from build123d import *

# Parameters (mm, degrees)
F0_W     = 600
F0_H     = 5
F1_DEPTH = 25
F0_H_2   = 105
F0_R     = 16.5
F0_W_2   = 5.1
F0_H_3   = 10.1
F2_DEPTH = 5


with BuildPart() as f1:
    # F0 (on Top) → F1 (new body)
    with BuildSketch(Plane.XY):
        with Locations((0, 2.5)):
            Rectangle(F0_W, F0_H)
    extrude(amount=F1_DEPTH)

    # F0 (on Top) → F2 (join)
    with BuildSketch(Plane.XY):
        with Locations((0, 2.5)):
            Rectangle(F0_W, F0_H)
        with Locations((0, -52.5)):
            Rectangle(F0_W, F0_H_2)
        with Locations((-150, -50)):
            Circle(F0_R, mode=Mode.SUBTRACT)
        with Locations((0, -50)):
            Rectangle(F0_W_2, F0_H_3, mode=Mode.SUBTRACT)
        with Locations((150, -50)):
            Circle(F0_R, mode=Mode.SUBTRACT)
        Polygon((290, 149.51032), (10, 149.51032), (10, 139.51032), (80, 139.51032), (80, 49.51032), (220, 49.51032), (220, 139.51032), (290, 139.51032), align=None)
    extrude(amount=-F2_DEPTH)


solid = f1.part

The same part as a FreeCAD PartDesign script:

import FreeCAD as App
import Part
import Sketcher

doc = App.newDocument("Part")
body = doc.addObject("PartDesign::Body", "Body")
body.AllowCompound = True

sketch1 = body.newObject("Sketcher::SketchObject", "Sketch")
sketch1.AttachmentSupport = (doc.getObject("XY_Plane"), [""])
sketch1.MapMode = "FlatFace"
sketch1.addGeometry(Part.LineSegment(App.Vector(-300, 5, 0), App.Vector(-300, 0, 0)), False)
sketch1.addGeometry(Part.LineSegment(App.Vector(-300, 0, 0), App.Vector(300, 0, 0)), False)
sketch1.addGeometry(Part.LineSegment(App.Vector(300, 0, 0), App.Vector(300, 5, 0)), False)
sketch1.addGeometry(Part.LineSegment(App.Vector(300, 5, 0), App.Vector(-300, 5, 0)), False)
sketch1.addConstraint(Sketcher.Constraint("Coincident", 0, 2, 1, 1))
sketch1.addConstraint(Sketcher.Constraint("Coincident", 1, 2, 2, 1))
sketch1.addConstraint(Sketcher.Constraint("Coincident", 2, 2, 3, 1))
sketch1.addConstraint(Sketcher.Constraint("Coincident", 3, 2, 0, 1))
sketch1.addConstraint(Sketcher.Constraint("Vertical", 0))
sketch1.addConstraint(Sketcher.Constraint("Horizontal", 1))
sketch1.addConstraint(Sketcher.Constraint("Vertical", 2))
sketch1.addConstraint(Sketcher.Constraint("Horizontal", 3))
sketch1.addConstraint(Sketcher.Constraint("Symmetric", 0, 2, 1, 2, -1, 1))
sketch1.addConstraint(Sketcher.Constraint("DistanceX", 1, 1, 1, 2, 600.0))
sketch1.addConstraint(Sketcher.Constraint("DistanceY", 0, 2, 0, 1, 5.0))
pad1 = body.newObject("PartDesign::Pad", "Pad")
pad1.Profile = sketch1
pad1.Length = 25

sketch2 = body.newObject("Sketcher::SketchObject", "Sketch001")
sketch2.AttachmentSupport = (doc.getObject("XY_Plane"), [""])
sketch2.MapMode = "FlatFace"
sketch2.addGeometry(Part.LineSegment(App.Vector(-300, 5, 0), App.Vector(-300, -105, 0)), False)
sketch2.addGeometry(Part.LineSegment(App.Vector(-300, -105, 0), App.Vector(300, -105, 0)), False)
sketch2.addGeometry(Part.LineSegment(App.Vector(300, -105, 0), App.Vector(300, 5, 0)), False)
sketch2.addGeometry(Part.LineSegment(App.Vector(300, 5, 0), App.Vector(-300, 5, 0)), False)
sketch2.addGeometry(Part.Circle(App.Vector(-150, -50, 0), App.Vector(0, 0, 1), 16), False)
sketch2.addGeometry(Part.LineSegment(App.Vector(3, -55, 0), App.Vector(-3, -55, 0)), False)
sketch2.addGeometry(Part.LineSegment(App.Vector(-3, -55, 0), App.Vector(-3, -45, 0)), False)
sketch2.addGeometry(Part.LineSegment(App.Vector(-3, -45, 0), App.Vector(3, -45, 0)), False)
sketch2.addGeometry(Part.LineSegment(App.Vector(3, -45, 0), App.Vector(3, -55, 0)), False)
sketch2.addGeometry(Part.Circle(App.Vector(150, -50, 0), App.Vector(0, 0, 1), 16), False)
sketch2.addGeometry(Part.LineSegment(App.Vector(290, 150, 0), App.Vector(10, 150, 0)), False)
sketch2.addGeometry(Part.LineSegment(App.Vector(10, 150, 0), App.Vector(10, 140, 0)), False)
sketch2.addGeometry(Part.LineSegment(App.Vector(10, 140, 0), App.Vector(80, 140, 0)), False)
sketch2.addGeometry(Part.LineSegment(App.Vector(80, 140, 0), App.Vector(80, 50, 0)), False)
sketch2.addGeometry(Part.LineSegment(App.Vector(80, 50, 0), App.Vector(220, 50, 0)), False)
sketch2.addGeometry(Part.LineSegment(App.Vector(220, 50, 0), App.Vector(220, 140, 0)), False)
sketch2.addGeometry(Part.LineSegment(App.Vector(220, 140, 0), App.Vector(290, 140, 0)), False)
sketch2.addGeometry(Part.LineSegment(App.Vector(290, 140, 0), App.Vector(290, 150, 0)), False)
sketch2.addConstraint(Sketcher.Constraint("Coincident", 0, 2, 1, 1))
sketch2.addConstraint(Sketcher.Constraint("Coincident", 1, 2, 2, 1))
sketch2.addConstraint(Sketcher.Constraint("Coincident", 2, 2, 3, 1))
sketch2.addConstraint(Sketcher.Constraint("Coincident", 3, 2, 0, 1))
sketch2.addConstraint(Sketcher.Constraint("Coincident", 5, 2, 6, 1))
sketch2.addConstraint(Sketcher.Constraint("Coincident", 6, 2, 7, 1))
sketch2.addConstraint(Sketcher.Constraint("Coincident", 7, 2, 8, 1))
sketch2.addConstraint(Sketcher.Constraint("Coincident", 8, 2, 5, 1))
sketch2.addConstraint(Sketcher.Constraint("Coincident", 10, 2, 11, 1))
sketch2.addConstraint(Sketcher.Constraint("Coincident", 11, 2, 12, 1))
sketch2.addConstraint(Sketcher.Constraint("Coincident", 12, 2, 13, 1))
sketch2.addConstraint(Sketcher.Constraint("Coincident", 13, 2, 14, 1))
sketch2.addConstraint(Sketcher.Constraint("Coincident", 14, 2, 15, 1))
sketch2.addConstraint(Sketcher.Constraint("Coincident", 15, 2, 16, 1))
sketch2.addConstraint(Sketcher.Constraint("Coincident", 16, 2, 17, 1))
sketch2.addConstraint(Sketcher.Constraint("Coincident", 17, 2, 10, 1))
sketch2.addConstraint(Sketcher.Constraint("Vertical", 0))
sketch2.addConstraint(Sketcher.Constraint("Horizontal", 1))
sketch2.addConstraint(Sketcher.Constraint("Vertical", 2))
sketch2.addConstraint(Sketcher.Constraint("Horizontal", 3))
sketch2.addConstraint(Sketcher.Constraint("Horizontal", 5))
sketch2.addConstraint(Sketcher.Constraint("Vertical", 6))
sketch2.addConstraint(Sketcher.Constraint("Horizontal", 7))
sketch2.addConstraint(Sketcher.Constraint("Vertical", 8))
sketch2.addConstraint(Sketcher.Constraint("Horizontal", 10))
sketch2.addConstraint(Sketcher.Constraint("Vertical", 11))
sketch2.addConstraint(Sketcher.Constraint("Horizontal", 12))
sketch2.addConstraint(Sketcher.Constraint("Vertical", 13))
sketch2.addConstraint(Sketcher.Constraint("Horizontal", 14))
sketch2.addConstraint(Sketcher.Constraint("Vertical", 15))
sketch2.addConstraint(Sketcher.Constraint("Horizontal", 16))
sketch2.addConstraint(Sketcher.Constraint("Vertical", 17))
sketch2.addConstraint(Sketcher.Constraint("Equal", 4, 9))
sketch2.addConstraint(Sketcher.Constraint("Symmetric", 4, 3, 9, 3, -2))
sketch2.addConstraint(Sketcher.Constraint("Horizontal", 12, 2, 15, 2))
sketch2.addConstraint(Sketcher.Constraint("Equal", 12, 16))
sketch2.addConstraint(Sketcher.Constraint("Diameter", 4, 33.0))
sketch2.addConstraint(Sketcher.Constraint("DistanceX", 1, 1, 1, 2, 600.0))
sketch2.addConstraint(Sketcher.Constraint("DistanceX", 10, 2, 10, 1, 280.0))
sketch2.addConstraint(Sketcher.Constraint("DistanceX", 12, 1, 12, 2, 70.0))
sketch2.addConstraint(Sketcher.Constraint("DistanceY", 0, 2, 0, 1, 110.0))
sketch2.addConstraint(Sketcher.Constraint("DistanceY", 11, 2, 11, 1, 10.0))
sketch2.addConstraint(Sketcher.Constraint("DistanceY", 13, 2, 13, 1, 90.0))
sketch2.addConstraint(Sketcher.Constraint("DistanceX", 5, 2, 5, 1, 5.1))
sketch2.addConstraint(Sketcher.Constraint("DistanceY", 6, 1, 6, 2, 10.1))
sketch2.addConstraint(Sketcher.Constraint("DistanceX", 4, 3, -1, 1, 150.0))
sketch2.addConstraint(Sketcher.Constraint("DistanceY", 4, 3, -1, 1, 50.0))
sketch2.addConstraint(Sketcher.Constraint("DistanceX", 0, 2, -1, 1, 300.0))
sketch2.addConstraint(Sketcher.Constraint("DistanceY", 0, 2, -1, 1, 105.0))
sketch2.addConstraint(Sketcher.Constraint("DistanceX", -1, 1, 10, 2, 10.0))
sketch2.addConstraint(Sketcher.Constraint("DistanceX", 5, 2, -1, 1, 2.55))
sketch2.addConstraint(Sketcher.Constraint("DistanceY", 5, 2, -1, 1, 55.05))
sketch2.addConstraint(Sketcher.Constraint("DistanceY", -1, 1, 10, 2, 149.51032))
pad2 = body.newObject("PartDesign::Pad", "Pad001")
pad2.Profile = sketch2
pad2.Length = 5
pad2.Reversed = True

doc.recompute()
